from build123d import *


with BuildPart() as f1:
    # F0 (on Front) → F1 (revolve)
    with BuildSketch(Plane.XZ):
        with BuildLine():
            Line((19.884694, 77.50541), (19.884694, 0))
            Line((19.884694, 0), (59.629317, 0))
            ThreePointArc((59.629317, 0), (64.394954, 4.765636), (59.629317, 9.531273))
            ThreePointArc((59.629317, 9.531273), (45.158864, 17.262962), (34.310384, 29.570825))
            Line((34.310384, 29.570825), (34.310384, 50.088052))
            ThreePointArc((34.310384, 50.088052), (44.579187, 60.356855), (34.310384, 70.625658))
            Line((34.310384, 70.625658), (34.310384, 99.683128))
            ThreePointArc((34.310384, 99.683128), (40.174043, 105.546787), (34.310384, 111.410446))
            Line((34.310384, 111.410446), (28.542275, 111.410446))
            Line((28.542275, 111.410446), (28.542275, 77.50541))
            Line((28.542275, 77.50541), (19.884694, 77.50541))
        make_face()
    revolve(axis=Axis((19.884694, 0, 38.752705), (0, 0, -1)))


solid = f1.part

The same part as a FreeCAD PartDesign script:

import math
import FreeCAD as App
import Part
import Sketcher

V = App.Vector

doc = App.newDocument("Part")
params = doc.addObject("Spreadsheet::Sheet", "Params")
for row, (alias, value) in enumerate([
    ("revolution_angle", "360 deg"),
], start=1):
    params.set(f"A{row}", alias)
    params.set(f"B{row}", "=" + value)
    params.setAlias(f"B{row}", alias)

body = doc.addObject("PartDesign::Body", "Body")

sketch1 = body.newObject("Sketcher::SketchObject", "Sketch")
sketch1.AttachmentSupport = (doc.getObject("XZ_Plane"), [""])
sketch1.MapMode = "FlatFace"
sketch1.addGeometry(Part.LineSegment(V(19.9, 77.5, 0), V(19.9, 0, 0)), False)
sketch1.addGeometry(Part.LineSegment(V(19.9, 0, 0), V(59.6, 0, 0)), False)
sketch1.addGeometry(Part.ArcOfCircle(Part.Circle(V(59.6, 4.8, 0), V(0, 0, 1), 4.8), math.radians(-90), math.radians(90)), False)
sketch1.addGeometry(Part.ArcOfCircle(Part.Circle(V(73.8, 53.4, 0), V(0, 0, 1), 46.1), math.radians(-149), math.radians(-108)), False)
sketch1.addGeometry(Part.LineSegment(V(34.3, 29.6, 0), V(34.3, 50.1, 0)), False)
sketch1.addGeometry(Part.ArcOfCircle(Part.Circle(V(34.3, 60.4, 0), V(0, 0, 1), 10.3), math.radians(-90), math.radians(90)), False)
sketch1.addGeometry(Part.LineSegment(V(34.3, 70.6, 0), V(34.3, 99.7, 0)), False)
sketch1.addGeometry(Part.ArcOfCircle(Part.Circle(V(34.3, 105.5, 0), V(0, 0, 1), 5.9), math.radians(-90), math.radians(90)), False)
sketch1.addGeometry(Part.LineSegment(V(34.3, 111.4, 0), V(28.5, 111.4, 0)), False)
sketch1.addGeometry(Part.LineSegment(V(28.5, 111.4, 0), V(28.5, 77.5, 0)), False)
sketch1.addGeometry(Part.LineSegment(V(28.5, 77.5, 0), V(19.9, 77.5, 0)), False)
sketch1.addGeometry(Part.LineSegment(V(19.9, 111.4, 0), V(19.9, 0, 0)), True)
sketch1.addConstraint(Sketcher.Constraint("Coincident", 0, 2, 1, 1))
sketch1.addConstraint(Sketcher.Constraint("Tangent", 1, 2, 2, 1))
sketch1.addConstraint(Sketcher.Constraint("Coincident", 2, 2, 3, 2))
sketch1.addConstraint(Sketcher.Constraint("Coincident", 3, 1, 4, 1))
sketch1.addConstraint(Sketcher.Constraint("Coincident", 4, 2, 5, 1))
sketch1.addConstraint(Sketcher.Constraint("Coincident", 5, 2, 6, 1))
sketch1.addConstraint(Sketcher.Constraint("Coincident", 6, 2, 7, 1))
sketch1.addConstraint(Sketcher.Constraint("Tangent", 7, 2, 8, 1))
sketch1.addConstraint(Sketcher.Constraint("Coincident", 8, 2, 9, 1))
sketch1.addConstraint(Sketcher.Constraint("Coincident", 9, 2, 10, 1))
sketch1.addConstraint(Sketcher.Constraint("Coincident", 10, 2, 0, 1))
sketch1.addConstraint(Sketcher.Constraint("Vertical", 0))
sketch1.addConstraint(Sketcher.Constraint("Horizontal", 1))
sketch1.addConstraint(Sketcher.Constraint("Vertical", 4))
sketch1.addConstraint(Sketcher.Constraint("Vertical", 6))
sketch1.addConstraint(Sketcher.Constraint("Horizontal", 8))
sketch1.addConstraint(Sketcher.Constraint("Vertical", 9))
sketch1.addConstraint(Sketcher.Constraint("Horizontal", 10))
sketch1.addConstraint(Sketcher.Constraint("Vertical", 11))
sketch1.addConstraint(Sketcher.Constraint("Coincident", 11, 2, 0, 2))
sketch1.addConstraint(Sketcher.Constraint("PointOnObject", 0, 2, -1))
sketch1.addConstraint(Sketcher.Constraint("Horizontal", 8, 2, 11, 1))
sketch1.addConstraint(Sketcher.Constraint("Vertical", 5, 3, 7, 3))
sketch1.addConstraint(Sketcher.Constraint("Vertical", 1, 2, 2, 2))
sketch1.addConstraint(Sketcher.Constraint("Vertical", 7, 3, 3, 1))
sketch1.addConstraint(Sketcher.Constraint("Vertical", 4, 2, 5, 2))
sketch1.addConstraint(Sketcher.Constraint("Radius", 7, 5.863659))
sketch1.addConstraint(Sketcher.Constraint("Radius", 2, 4.765637))
sketch1.addConstraint(Sketcher.Constraint("Radius", 3, 46.122075))
sketch1.addConstraint(Sketcher.Constraint("Radius", 5, 10.268803))
sketch1.addConstraint(Sketcher.Constraint("DistanceX", 8, 2, 8, 1, 5.768109))
sketch1.addConstraint(Sketcher.Constraint("DistanceX", 10, 2, 10, 1, 8.657581))
sketch1.addConstraint(Sketcher.Constraint("DistanceY", 0, 2, 0, 1, 77.50541))
sketch1.addConstraint(Sketcher.Constraint("DistanceY", 6, 1, 6, 2, 29.05747))
sketch1.addConstraint(Sketcher.Constraint("DistanceX", 1, 1, 1, 2, 39.744623))
sketch1.addConstraint(Sketcher.Constraint("DistanceY", 4, 1, 4, 2, 20.517227))
sketch1.addConstraint(Sketcher.Constraint("DistanceY", 9, 2, 9, 1, 33.905036))
sketch1.addConstraint(Sketcher.Constraint("DistanceX", -1, 1, 3, 3, 73.78293))
revolution = body.newObject("PartDesign::Revolution", "Revolution")
revolution.Profile = sketch1
revolution.ReferenceAxis = (sketch1, ["Axis0"])
revolution.setExpression("Angle", "Params.revolution_angle")

doc.recompute()
